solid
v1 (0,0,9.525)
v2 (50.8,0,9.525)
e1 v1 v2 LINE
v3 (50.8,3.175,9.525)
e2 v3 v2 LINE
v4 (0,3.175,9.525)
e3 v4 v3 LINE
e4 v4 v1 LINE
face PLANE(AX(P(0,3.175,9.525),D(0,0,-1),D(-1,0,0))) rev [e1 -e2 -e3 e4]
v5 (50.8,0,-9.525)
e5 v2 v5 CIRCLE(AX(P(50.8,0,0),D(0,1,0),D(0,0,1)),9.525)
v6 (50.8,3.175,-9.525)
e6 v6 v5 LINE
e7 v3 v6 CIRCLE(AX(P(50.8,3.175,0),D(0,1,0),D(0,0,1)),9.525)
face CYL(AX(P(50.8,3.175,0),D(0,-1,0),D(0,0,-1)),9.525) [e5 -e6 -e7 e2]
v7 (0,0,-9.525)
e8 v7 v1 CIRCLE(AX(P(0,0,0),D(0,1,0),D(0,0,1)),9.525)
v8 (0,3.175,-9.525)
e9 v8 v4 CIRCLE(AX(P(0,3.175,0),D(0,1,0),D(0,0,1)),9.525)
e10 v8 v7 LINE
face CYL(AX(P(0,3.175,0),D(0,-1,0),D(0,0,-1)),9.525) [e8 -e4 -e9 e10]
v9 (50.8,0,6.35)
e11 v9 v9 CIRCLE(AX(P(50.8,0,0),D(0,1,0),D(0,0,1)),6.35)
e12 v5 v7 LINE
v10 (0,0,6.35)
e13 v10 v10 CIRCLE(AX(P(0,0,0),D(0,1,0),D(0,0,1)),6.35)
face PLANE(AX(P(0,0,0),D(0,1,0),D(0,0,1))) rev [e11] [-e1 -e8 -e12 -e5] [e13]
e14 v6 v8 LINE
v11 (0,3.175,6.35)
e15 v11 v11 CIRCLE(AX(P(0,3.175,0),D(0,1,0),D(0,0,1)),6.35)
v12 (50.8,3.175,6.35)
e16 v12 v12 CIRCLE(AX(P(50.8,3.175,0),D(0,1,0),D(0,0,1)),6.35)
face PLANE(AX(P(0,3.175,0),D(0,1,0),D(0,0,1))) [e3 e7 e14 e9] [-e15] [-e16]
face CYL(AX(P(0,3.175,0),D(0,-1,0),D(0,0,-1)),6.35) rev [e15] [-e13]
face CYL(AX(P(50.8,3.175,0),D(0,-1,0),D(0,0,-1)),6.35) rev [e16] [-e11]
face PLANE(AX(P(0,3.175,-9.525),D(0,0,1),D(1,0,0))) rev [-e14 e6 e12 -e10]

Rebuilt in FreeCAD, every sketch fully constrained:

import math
import FreeCAD as App
import Part
import Sketcher

V = App.Vector
Q = App.Units.Quantity

doc = App.newDocument("Part")
body = doc.addObject("PartDesign::Body", "Body")

sketch1 = doc.addObject("Sketcher::SketchObject", "Sketch")
body.addObject(sketch1)
sketch1.AttachmentSupport = (doc.XZ_Plane, [""])
sketch1.MapMode = "FlatFace"
sketch1.addGeometry([
    Part.LineSegment(V(51, -10, 0), V(0, -10, 0)),
    Part.ArcOfCircle(Part.Circle(V(0, 0, 0), V(0, 0, 1), 10), math.radians(90), math.radians(270)),
    Part.LineSegment(V(0, 10, 0), V(51, 10, 0)),
    Part.ArcOfCircle(Part.Circle(V(51, 0, 0), V(0, 0, 1), 10), math.radians(-90), math.radians(90)),
    Part.Circle(V(51, 0, 0), V(0, 0, 1), 6),
    Part.Circle(V(0, 0, 0), V(0, 0, 1), 6),
], False)
sketch1.addConstraint([
    Sketcher.Constraint("Tangent", 0, 2, 1, 2),
    Sketcher.Constraint("Tangent", 1, 1, 2, 1),
    Sketcher.Constraint("Tangent", 2, 2, 3, 2),
    Sketcher.Constraint("Tangent", 3, 1, 0, 1),
    Sketcher.Constraint("Horizontal", 0),
    Sketcher.Constraint("Horizontal", 2),
    Sketcher.Constraint("Coincident", 1, 3, -1, 1),
    Sketcher.Constraint("Coincident", 5, 3, -1, 1),
    Sketcher.Constraint("Coincident", 4, 3, 3, 3),
    Sketcher.Constraint("Equal", 4, 5),
    Sketcher.Constraint("Diameter", 4, Q("0.5 in")),
    Sketcher.Constraint("DistanceX", 0, 2, 0, 1, Q("2 in")),
    Sketcher.Constraint("Radius", 1, Q("0.375 in")),
])
pad1 = doc.addObject("PartDesign::Pad", "Pad")
body.addObject(pad1)
pad1.Profile = sketch1
pad1.Length = Q("0.125 in")
pad1.Reversed = True

doc.recompute()
